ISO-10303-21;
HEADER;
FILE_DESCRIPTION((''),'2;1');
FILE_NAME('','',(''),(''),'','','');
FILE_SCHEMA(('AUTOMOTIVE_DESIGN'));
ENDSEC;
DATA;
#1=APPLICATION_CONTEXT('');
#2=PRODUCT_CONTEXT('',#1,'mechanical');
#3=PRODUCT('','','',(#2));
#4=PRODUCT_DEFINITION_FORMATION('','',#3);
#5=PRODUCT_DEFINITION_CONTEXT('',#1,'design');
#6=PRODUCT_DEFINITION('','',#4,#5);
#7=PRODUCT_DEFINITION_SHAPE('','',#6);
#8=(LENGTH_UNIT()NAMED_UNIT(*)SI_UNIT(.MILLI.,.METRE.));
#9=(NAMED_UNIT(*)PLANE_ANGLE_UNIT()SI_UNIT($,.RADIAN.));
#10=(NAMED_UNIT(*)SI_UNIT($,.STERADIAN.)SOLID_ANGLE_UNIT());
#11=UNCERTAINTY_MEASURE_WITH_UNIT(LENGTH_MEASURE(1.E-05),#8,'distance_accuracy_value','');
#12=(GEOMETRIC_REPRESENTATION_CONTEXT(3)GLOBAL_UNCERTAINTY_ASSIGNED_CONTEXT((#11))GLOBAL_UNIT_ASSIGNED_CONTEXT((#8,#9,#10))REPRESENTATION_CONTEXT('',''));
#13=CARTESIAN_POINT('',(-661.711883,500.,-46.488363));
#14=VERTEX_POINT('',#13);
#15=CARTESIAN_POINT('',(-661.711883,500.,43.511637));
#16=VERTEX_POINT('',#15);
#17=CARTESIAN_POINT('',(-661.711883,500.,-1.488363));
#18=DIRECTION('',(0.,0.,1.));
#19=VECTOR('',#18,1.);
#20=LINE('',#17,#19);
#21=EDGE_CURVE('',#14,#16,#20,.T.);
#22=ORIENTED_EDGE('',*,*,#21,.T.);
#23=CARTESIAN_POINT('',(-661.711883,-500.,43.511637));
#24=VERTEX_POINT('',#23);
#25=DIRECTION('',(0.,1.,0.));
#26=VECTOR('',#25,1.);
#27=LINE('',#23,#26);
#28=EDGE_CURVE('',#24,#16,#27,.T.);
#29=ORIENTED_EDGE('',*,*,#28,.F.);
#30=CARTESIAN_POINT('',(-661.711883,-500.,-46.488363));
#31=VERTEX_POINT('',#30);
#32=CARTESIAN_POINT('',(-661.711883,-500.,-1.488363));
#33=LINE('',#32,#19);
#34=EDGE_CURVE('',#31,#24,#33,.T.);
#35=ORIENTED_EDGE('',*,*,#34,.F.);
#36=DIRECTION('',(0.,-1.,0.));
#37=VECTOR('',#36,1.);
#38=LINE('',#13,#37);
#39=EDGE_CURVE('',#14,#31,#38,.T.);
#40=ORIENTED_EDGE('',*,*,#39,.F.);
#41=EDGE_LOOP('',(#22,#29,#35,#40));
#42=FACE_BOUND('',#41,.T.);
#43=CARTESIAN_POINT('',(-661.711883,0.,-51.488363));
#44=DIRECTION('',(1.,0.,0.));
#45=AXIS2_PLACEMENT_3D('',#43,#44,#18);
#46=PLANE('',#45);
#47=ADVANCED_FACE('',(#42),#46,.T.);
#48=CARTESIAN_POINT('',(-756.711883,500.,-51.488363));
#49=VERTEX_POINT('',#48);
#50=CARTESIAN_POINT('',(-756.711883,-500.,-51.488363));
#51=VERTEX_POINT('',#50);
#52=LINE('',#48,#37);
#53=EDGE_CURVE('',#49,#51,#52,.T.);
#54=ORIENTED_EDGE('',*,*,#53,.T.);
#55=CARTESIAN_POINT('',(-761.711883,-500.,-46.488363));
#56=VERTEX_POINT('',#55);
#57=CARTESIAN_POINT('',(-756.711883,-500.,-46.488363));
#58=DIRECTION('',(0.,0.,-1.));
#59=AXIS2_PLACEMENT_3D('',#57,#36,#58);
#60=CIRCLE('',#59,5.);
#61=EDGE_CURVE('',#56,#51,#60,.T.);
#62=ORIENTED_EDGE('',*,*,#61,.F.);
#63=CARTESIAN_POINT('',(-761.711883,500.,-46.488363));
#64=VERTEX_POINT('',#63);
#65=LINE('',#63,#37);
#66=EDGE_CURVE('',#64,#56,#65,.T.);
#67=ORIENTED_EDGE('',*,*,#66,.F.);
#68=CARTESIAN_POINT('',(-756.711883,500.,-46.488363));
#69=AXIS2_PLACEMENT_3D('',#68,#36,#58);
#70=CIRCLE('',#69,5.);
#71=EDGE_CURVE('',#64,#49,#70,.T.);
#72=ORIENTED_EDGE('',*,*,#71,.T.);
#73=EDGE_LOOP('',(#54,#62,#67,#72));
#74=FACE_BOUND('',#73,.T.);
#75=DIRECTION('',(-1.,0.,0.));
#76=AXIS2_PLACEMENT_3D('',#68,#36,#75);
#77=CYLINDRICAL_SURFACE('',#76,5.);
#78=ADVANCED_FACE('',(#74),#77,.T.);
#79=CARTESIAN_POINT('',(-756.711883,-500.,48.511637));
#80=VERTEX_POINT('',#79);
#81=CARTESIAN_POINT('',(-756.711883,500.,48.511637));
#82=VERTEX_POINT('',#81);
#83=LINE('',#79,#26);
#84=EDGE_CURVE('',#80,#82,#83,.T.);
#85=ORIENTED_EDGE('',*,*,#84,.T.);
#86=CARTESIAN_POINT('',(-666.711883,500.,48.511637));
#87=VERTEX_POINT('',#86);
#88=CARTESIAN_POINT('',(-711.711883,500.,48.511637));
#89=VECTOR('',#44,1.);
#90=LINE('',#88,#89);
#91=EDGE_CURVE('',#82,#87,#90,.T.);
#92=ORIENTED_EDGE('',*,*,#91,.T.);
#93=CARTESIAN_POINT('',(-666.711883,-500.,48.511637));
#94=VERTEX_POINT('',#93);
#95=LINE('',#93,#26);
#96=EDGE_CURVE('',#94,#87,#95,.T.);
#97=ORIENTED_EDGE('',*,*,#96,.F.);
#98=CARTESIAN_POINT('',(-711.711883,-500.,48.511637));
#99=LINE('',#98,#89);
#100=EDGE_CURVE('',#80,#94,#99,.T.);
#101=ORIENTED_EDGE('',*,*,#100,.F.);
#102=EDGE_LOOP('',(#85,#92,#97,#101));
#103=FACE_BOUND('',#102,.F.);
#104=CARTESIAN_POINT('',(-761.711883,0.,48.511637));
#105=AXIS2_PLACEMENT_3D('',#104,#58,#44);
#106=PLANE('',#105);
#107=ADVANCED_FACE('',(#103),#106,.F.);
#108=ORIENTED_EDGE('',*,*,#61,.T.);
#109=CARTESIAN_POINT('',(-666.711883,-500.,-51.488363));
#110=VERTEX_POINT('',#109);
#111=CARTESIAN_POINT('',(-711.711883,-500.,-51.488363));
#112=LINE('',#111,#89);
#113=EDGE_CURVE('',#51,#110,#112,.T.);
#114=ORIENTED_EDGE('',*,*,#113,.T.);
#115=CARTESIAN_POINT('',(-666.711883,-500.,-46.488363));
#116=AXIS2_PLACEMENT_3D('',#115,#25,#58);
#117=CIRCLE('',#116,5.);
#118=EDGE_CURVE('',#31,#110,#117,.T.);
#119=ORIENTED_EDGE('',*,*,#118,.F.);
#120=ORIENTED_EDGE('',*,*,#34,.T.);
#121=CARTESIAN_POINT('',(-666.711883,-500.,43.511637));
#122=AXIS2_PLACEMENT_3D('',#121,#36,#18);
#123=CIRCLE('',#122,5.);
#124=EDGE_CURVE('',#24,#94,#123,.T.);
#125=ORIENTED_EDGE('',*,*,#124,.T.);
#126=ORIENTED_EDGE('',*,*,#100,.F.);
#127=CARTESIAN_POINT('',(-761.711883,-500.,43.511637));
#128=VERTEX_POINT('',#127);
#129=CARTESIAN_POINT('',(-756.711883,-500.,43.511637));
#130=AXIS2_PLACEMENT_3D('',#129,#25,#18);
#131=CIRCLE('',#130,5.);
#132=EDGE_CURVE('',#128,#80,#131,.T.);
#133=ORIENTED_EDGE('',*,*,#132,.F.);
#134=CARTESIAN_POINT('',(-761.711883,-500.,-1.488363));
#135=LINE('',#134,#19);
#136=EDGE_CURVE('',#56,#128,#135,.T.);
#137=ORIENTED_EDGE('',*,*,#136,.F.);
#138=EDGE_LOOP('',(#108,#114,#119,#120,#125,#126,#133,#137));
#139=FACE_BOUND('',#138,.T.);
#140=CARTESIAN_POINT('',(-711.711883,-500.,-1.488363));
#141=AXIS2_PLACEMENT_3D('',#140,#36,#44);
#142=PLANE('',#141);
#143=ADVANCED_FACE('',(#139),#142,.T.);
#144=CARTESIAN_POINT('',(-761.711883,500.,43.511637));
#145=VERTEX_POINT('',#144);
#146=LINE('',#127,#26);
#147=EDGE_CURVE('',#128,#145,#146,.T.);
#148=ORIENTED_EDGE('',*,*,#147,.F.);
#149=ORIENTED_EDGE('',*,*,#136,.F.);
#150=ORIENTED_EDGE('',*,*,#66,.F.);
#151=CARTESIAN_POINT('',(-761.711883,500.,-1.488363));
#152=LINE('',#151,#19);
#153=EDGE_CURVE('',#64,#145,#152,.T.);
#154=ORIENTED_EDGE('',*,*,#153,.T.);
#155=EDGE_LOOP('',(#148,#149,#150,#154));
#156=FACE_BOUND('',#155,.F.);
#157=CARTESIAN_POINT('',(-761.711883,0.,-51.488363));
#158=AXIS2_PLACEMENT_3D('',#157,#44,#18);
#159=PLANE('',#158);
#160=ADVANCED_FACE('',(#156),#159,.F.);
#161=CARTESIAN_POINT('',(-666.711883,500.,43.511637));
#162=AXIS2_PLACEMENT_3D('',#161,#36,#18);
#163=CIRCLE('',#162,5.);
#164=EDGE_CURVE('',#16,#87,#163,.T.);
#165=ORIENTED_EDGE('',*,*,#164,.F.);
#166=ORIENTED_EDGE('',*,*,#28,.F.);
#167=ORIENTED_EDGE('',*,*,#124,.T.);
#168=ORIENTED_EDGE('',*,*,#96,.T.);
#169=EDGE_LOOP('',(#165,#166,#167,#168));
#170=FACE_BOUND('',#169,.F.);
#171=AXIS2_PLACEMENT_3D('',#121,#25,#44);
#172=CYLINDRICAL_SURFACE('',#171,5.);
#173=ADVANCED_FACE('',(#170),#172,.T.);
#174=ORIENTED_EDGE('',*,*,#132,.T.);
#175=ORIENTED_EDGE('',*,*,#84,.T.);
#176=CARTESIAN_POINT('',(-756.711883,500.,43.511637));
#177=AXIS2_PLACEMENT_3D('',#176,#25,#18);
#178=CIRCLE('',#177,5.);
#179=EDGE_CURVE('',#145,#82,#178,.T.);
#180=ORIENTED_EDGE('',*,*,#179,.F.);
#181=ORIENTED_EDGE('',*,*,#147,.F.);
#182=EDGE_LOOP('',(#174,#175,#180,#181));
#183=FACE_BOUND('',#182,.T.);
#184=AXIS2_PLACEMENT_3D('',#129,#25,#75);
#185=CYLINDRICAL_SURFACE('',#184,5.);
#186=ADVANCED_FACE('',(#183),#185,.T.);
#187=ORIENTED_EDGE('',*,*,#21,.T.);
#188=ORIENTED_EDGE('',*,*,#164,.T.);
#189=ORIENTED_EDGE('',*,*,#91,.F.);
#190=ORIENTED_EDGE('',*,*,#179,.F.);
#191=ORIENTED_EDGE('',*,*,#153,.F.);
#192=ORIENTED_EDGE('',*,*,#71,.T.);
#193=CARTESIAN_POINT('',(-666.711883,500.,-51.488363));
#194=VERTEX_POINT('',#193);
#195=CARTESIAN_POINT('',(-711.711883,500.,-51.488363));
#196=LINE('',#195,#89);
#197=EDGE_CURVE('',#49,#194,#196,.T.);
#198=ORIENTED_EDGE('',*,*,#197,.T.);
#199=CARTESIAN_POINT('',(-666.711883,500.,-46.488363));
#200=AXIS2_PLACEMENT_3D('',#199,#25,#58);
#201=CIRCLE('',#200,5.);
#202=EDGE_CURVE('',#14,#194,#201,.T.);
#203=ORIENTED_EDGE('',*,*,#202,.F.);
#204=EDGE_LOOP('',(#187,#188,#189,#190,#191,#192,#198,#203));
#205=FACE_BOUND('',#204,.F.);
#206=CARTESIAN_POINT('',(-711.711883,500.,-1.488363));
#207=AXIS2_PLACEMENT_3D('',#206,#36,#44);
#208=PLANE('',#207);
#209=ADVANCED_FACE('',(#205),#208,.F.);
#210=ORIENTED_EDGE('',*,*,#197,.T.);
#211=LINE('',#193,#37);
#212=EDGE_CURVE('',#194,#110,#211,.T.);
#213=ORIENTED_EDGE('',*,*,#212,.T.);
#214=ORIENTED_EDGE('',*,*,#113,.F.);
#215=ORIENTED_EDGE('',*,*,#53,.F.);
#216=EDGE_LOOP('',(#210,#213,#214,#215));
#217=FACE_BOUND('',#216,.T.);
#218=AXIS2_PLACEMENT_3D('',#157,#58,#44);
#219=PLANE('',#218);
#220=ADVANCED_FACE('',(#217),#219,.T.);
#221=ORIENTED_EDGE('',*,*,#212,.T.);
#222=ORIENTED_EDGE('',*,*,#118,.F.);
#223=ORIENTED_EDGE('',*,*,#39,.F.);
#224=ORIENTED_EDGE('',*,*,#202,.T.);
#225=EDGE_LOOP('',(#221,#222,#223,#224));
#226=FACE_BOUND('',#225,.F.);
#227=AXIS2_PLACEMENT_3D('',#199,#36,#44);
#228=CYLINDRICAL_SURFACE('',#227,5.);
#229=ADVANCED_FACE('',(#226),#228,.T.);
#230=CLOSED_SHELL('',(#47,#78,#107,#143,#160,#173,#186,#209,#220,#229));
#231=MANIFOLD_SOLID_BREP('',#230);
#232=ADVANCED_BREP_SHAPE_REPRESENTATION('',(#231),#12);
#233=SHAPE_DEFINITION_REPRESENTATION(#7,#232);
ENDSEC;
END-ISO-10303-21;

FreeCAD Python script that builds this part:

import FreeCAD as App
import Part
import Sketcher

V = App.Vector


def edges_at(feature, points):
    """Names of the edges that pass closest to the given points."""
    edges = feature.Shape.Edges
    near = lambda p: min(range(len(edges)), key=lambda i: edges[i].distToShape(Part.Vertex(*p))[0])
    return sorted({f"Edge{near(p) + 1}" for p in points})

doc = App.newDocument("Part")
body = doc.addObject("PartDesign::Body", "Body")

# Sketch on XZ plane
sketch1 = body.newObject("Sketcher::SketchObject", "Sketch")
sketch1.AttachmentSupport = (doc.getObject("XZ_Plane"), [""])
sketch1.MapMode = "FlatFace"
sketch1.addGeometry(Part.LineSegment(V(-761.711883, 48.511637, 0), V(-761.711883, -51.488363, 0)), False)
sketch1.addGeometry(Part.LineSegment(V(-761.711883, -51.488363, 0), V(-661.711883, -51.488363, 0)), False)
sketch1.addGeometry(Part.LineSegment(V(-661.711883, -51.488363, 0), V(-661.711883, 48.511637, 0)), False)
sketch1.addGeometry(Part.LineSegment(V(-661.711883, 48.511637, 0), V(-761.711883, 48.511637, 0)), False)
sketch1.addConstraint(Sketcher.Constraint("Coincident", 0, 2, 1, 1))
sketch1.addConstraint(Sketcher.Constraint("Coincident", 1, 2, 2, 1))
sketch1.addConstraint(Sketcher.Constraint("Coincident", 2, 2, 3, 1))
sketch1.addConstraint(Sketcher.Constraint("Coincident", 3, 2, 0, 1))
sketch1.addConstraint(Sketcher.Constraint("Vertical", 0))
sketch1.addConstraint(Sketcher.Constraint("Horizontal", 1))
sketch1.addConstraint(Sketcher.Constraint("Vertical", 2))
sketch1.addConstraint(Sketcher.Constraint("Horizontal", 3))
sketch1.addConstraint(Sketcher.Constraint("Equal", 3, 0))
sketch1.addConstraint(Sketcher.Constraint("DistanceX", 1, 1, 1, 2, 100.0))
sketch1.addConstraint(Sketcher.Constraint("DistanceX", 0, 2, -1, 1, 761.711883))
sketch1.addConstraint(Sketcher.Constraint("DistanceY", 0, 2, -1, 1, 51.488363))
pad1 = body.newObject("PartDesign::Pad", "Pad")
pad1.Profile = sketch1
pad1.Length = 1000
pad1.Midplane = True
doc.recompute()

fillet = body.newObject("PartDesign::Fillet", "Fillet")
fillet.Base = (pad1, edges_at(pad1, [
    (-761.712, 0, -51.488),
    (-661.712, 0, -51.488),
    (-661.712, 0, 48.512),
    (-761.712, 0, 48.512),
]))
fillet.Radius = 5

doc.recompute()
